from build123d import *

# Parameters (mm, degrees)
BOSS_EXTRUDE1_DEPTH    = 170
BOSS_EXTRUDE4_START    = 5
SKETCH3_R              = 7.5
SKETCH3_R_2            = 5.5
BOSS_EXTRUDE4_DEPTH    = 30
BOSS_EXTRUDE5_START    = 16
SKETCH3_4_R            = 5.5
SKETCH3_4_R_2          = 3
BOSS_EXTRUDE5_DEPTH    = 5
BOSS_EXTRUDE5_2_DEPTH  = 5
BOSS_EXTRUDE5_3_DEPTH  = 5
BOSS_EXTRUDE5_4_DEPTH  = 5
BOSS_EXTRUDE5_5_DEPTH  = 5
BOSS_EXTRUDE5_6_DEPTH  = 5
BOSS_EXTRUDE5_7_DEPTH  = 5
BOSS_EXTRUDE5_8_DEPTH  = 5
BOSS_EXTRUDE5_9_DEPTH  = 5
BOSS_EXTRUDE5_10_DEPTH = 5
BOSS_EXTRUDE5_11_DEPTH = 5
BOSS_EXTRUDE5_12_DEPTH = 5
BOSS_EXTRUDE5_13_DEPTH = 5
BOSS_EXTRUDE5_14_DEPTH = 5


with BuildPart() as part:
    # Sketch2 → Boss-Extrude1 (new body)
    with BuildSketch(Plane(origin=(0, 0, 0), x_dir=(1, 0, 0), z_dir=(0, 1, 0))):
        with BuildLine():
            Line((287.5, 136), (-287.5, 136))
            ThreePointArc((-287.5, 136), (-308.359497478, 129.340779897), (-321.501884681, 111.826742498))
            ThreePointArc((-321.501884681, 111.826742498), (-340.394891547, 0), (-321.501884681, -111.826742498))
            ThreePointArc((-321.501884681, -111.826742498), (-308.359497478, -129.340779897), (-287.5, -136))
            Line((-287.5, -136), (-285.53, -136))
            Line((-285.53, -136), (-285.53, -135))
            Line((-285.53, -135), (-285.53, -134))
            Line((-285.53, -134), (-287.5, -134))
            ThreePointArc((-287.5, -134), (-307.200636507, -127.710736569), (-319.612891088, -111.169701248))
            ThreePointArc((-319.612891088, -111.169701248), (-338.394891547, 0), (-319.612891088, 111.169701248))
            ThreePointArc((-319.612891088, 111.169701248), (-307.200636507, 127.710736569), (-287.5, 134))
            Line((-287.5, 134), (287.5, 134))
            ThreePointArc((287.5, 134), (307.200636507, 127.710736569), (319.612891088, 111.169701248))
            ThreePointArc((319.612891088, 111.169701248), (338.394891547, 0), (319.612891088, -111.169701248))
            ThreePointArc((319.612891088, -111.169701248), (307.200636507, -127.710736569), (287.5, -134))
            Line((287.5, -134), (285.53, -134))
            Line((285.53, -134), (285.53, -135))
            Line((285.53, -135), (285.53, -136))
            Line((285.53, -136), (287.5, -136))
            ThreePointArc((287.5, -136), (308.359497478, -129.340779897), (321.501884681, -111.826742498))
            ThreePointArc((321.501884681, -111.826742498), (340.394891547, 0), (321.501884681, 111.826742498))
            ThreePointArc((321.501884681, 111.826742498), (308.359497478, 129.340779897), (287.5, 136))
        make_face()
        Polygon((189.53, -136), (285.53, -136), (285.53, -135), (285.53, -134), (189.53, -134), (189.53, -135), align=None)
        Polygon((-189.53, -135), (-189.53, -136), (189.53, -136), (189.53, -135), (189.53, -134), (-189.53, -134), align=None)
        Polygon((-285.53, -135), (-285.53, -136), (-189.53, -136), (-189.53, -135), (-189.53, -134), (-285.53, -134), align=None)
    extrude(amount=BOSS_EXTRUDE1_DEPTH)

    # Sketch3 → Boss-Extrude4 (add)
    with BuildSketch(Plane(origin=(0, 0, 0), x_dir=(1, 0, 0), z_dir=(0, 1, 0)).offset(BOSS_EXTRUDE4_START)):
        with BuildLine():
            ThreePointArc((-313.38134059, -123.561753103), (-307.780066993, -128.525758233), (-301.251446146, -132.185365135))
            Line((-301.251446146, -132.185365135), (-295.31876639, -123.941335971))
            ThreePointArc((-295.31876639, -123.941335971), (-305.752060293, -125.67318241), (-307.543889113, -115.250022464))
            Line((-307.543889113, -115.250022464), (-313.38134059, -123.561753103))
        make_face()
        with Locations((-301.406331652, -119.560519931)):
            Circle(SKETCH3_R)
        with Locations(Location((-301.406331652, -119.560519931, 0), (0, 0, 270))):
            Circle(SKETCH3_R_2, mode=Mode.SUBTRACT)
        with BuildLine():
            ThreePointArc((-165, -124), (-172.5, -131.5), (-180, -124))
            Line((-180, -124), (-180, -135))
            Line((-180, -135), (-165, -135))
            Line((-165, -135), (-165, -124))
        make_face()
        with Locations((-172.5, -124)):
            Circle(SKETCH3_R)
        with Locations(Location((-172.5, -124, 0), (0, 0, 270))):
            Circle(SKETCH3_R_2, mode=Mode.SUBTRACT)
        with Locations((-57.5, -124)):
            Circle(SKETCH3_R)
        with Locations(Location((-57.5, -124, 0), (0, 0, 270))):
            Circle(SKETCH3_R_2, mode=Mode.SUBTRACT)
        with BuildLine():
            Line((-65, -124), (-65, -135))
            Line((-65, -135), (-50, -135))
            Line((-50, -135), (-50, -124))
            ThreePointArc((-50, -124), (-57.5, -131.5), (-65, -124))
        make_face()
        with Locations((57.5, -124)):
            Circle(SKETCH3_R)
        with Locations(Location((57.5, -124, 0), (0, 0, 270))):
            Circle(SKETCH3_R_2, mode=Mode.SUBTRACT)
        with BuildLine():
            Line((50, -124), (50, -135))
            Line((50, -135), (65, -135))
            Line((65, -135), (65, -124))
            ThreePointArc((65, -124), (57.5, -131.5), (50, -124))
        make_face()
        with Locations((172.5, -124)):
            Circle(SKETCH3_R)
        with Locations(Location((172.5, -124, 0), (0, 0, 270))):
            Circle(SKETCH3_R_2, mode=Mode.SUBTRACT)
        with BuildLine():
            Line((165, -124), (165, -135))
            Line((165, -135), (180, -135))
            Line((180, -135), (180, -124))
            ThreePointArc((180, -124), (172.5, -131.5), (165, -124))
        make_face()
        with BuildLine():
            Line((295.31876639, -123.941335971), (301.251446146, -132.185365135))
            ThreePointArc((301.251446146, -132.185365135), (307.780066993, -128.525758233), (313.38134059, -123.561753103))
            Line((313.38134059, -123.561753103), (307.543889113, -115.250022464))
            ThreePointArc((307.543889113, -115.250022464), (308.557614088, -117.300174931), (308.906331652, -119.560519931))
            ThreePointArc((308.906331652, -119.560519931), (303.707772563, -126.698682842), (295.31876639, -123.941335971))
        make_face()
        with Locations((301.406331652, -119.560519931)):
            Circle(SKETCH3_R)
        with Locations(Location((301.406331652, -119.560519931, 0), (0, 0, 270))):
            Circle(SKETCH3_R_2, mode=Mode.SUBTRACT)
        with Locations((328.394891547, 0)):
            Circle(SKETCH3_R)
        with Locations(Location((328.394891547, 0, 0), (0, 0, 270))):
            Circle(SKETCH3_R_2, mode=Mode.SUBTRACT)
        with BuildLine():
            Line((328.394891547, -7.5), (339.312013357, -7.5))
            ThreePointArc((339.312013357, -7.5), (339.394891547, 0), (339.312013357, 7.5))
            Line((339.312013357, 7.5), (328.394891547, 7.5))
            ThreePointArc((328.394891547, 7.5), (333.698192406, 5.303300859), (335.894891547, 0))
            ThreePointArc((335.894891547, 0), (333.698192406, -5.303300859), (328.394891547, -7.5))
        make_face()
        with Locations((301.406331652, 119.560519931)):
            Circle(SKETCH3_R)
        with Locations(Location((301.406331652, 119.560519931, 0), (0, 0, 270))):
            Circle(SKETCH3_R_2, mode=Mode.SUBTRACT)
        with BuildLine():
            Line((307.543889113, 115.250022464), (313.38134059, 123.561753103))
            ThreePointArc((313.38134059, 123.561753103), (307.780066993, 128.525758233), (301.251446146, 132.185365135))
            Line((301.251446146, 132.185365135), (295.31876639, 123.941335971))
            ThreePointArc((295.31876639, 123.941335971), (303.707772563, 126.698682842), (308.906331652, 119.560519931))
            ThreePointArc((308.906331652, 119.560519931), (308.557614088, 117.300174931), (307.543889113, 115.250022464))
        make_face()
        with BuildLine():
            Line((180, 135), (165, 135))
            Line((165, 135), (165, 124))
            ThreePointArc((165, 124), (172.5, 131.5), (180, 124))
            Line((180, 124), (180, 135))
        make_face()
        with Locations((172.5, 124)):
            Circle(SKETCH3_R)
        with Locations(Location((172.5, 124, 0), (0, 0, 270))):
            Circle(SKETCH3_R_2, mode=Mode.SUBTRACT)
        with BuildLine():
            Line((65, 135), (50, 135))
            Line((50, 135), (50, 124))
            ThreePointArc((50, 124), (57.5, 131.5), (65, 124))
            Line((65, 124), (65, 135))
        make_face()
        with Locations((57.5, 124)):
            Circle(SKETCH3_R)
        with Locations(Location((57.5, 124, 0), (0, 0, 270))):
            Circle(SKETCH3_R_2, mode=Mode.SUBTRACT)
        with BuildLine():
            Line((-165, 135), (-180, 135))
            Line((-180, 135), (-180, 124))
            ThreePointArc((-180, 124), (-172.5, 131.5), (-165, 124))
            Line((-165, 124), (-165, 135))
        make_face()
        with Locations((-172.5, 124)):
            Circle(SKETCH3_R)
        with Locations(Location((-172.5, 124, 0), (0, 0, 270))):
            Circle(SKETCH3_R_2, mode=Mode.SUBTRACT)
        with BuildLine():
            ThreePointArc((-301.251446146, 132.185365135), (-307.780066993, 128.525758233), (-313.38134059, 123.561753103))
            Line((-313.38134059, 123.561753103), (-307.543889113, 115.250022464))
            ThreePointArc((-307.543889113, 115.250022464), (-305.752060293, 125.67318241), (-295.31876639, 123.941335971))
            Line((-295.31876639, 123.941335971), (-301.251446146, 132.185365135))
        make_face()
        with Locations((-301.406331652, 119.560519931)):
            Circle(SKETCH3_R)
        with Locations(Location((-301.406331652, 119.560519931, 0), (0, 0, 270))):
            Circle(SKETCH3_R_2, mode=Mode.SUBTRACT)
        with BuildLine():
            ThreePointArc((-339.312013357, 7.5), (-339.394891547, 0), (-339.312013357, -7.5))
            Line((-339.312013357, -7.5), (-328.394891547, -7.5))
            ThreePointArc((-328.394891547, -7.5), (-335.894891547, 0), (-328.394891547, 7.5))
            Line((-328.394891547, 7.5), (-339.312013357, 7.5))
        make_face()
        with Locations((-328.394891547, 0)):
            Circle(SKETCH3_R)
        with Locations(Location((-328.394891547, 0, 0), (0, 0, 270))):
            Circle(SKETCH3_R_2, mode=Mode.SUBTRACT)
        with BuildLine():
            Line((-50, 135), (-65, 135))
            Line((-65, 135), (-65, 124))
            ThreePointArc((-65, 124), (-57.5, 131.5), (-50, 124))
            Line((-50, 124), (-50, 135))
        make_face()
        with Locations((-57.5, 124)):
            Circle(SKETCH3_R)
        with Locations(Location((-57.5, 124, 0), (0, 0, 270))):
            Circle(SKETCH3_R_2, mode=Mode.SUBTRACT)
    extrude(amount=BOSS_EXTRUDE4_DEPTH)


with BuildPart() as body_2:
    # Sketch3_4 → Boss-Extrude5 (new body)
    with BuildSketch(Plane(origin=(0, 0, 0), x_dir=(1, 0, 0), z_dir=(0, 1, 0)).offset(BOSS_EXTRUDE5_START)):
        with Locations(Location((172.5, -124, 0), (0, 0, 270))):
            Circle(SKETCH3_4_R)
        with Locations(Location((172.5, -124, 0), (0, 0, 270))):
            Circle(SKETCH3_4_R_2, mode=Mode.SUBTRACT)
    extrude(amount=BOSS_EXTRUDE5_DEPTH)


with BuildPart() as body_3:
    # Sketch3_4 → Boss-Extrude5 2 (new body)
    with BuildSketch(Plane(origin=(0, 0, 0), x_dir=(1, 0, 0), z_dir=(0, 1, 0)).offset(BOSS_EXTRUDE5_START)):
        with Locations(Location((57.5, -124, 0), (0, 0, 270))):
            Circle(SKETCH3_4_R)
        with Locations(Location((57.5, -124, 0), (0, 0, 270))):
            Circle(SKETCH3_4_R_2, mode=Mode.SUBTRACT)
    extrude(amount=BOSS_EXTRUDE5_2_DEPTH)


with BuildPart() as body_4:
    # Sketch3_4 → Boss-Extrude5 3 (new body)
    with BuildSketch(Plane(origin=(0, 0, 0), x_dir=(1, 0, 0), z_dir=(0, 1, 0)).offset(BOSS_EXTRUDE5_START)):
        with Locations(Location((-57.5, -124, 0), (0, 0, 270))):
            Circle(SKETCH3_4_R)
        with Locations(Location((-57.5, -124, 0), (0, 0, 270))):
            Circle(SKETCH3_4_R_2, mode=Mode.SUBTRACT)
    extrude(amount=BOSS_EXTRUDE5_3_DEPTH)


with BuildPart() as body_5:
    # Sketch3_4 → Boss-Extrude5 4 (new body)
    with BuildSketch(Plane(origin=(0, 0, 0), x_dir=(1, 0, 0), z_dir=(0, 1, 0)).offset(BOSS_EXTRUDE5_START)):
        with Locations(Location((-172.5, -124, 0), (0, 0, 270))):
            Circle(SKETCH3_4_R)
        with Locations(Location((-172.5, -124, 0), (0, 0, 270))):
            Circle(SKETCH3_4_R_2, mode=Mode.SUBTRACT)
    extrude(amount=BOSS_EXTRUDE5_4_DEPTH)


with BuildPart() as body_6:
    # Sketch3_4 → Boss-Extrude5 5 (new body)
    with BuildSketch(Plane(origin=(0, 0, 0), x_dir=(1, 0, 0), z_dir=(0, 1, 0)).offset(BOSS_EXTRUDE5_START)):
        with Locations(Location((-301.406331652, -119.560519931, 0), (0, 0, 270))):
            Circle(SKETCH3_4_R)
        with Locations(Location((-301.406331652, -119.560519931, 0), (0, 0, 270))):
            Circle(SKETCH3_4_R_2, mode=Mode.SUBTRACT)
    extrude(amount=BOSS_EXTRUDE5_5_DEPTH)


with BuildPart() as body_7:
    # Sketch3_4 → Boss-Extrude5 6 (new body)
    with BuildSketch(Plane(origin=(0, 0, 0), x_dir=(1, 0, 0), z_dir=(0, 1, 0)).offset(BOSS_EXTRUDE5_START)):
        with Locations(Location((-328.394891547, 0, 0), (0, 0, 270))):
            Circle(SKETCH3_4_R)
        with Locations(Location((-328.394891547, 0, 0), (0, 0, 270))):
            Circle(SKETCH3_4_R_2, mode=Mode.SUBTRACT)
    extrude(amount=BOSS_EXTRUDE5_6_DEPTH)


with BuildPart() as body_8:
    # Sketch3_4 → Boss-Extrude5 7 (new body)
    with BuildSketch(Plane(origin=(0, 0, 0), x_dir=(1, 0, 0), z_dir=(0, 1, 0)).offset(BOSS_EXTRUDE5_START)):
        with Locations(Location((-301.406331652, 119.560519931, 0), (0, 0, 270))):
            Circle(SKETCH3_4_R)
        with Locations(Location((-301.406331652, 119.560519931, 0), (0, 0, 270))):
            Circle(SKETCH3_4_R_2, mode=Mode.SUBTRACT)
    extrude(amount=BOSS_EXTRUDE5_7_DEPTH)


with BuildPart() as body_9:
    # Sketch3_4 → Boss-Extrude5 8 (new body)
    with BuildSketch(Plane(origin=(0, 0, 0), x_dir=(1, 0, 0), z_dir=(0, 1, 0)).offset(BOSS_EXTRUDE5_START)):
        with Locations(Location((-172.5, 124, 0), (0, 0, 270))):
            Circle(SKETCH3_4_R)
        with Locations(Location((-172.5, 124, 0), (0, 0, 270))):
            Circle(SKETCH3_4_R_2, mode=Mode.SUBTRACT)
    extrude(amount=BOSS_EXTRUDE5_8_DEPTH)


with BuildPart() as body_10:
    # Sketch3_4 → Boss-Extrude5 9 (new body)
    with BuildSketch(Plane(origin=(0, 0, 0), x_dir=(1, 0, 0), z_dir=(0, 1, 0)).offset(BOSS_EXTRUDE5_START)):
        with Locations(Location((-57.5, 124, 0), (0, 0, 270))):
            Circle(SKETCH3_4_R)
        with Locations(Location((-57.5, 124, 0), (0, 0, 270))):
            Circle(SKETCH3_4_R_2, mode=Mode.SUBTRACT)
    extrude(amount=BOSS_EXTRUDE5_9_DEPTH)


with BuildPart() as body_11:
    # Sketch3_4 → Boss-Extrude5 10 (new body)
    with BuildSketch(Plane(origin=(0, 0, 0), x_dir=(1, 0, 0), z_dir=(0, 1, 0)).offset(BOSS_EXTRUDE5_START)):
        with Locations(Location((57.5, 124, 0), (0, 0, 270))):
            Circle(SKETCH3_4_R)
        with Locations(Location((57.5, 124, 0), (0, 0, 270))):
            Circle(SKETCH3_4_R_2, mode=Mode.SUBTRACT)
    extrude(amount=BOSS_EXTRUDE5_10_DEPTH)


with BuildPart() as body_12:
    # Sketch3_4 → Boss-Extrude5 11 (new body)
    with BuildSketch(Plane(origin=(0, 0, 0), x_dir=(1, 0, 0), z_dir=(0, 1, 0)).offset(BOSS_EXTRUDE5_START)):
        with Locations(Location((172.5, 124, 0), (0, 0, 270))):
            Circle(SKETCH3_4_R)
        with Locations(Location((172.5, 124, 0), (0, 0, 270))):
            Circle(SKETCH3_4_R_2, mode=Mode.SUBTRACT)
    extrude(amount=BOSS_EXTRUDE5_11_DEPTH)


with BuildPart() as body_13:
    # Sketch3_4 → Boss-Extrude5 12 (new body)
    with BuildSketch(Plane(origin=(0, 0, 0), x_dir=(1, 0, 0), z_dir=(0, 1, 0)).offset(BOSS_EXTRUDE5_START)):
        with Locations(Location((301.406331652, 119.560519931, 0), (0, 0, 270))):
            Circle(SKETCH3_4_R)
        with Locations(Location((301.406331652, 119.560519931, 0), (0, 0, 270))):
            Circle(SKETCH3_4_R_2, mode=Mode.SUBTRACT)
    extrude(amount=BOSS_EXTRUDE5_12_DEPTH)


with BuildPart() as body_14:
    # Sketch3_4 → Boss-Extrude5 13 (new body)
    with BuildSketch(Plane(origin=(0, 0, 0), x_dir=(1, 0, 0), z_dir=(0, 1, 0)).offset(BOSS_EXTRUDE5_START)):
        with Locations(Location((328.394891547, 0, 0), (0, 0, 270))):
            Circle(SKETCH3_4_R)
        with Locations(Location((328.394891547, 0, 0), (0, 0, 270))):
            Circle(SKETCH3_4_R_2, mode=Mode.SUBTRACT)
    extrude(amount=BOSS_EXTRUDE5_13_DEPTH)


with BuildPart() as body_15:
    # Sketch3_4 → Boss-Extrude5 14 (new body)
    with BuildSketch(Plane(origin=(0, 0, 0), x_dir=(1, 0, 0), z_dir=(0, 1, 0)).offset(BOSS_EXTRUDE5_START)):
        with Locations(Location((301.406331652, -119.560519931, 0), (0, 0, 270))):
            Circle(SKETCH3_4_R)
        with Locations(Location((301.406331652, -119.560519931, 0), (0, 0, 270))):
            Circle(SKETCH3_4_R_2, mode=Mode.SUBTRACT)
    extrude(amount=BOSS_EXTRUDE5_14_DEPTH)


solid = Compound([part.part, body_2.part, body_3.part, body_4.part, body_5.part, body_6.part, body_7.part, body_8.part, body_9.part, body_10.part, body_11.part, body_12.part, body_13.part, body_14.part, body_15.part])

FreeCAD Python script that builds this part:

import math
import FreeCAD as App
import Part
import Sketcher
Q = App.Units.Quantity

doc = App.newDocument("Part")
body = doc.addObject("PartDesign::Body", "Body")

# Sketch on XZ plane
sketch1 = body.newObject("Sketcher::SketchObject", "Sketch")
sketch1.AttachmentSupport = (doc.getObject("XZ_Plane"), [""])
sketch1.MapMode = "FlatFace"
sketch1.addGeometry([
    Part.LineSegment(App.Vector(288, -136, 0), App.Vector(-288, -136, 0)),  # 0
    Part.ArcOfCircle(Part.Circle(App.Vector(-288, -100, 0), App.Vector(0, 0, 1), 36), math.radians(-161), math.radians(-90)),  # 1
    Part.ArcOfCircle(Part.Circle(App.Vector(0, 0, 0), App.Vector(0, 0, 1), 340), math.radians(161), math.radians(199)),  # 2
    Part.ArcOfCircle(Part.Circle(App.Vector(-288, 100, 0), App.Vector(0, 0, 1), 36), math.radians(90), math.radians(161)),  # 3
    Part.LineSegment(App.Vector(-288, 136, 0), App.Vector(288, 136, 0)),  # 4
    Part.ArcOfCircle(Part.Circle(App.Vector(288, 100, 0), App.Vector(0, 0, 1), 36), math.radians(19), math.radians(90)),  # 5
    Part.ArcOfCircle(Part.Circle(App.Vector(0, 0, 0), App.Vector(0, 0, 1), 340), math.radians(-19), math.radians(19)),  # 6
    Part.ArcOfCircle(Part.Circle(App.Vector(288, -100, 0), App.Vector(0, 0, 1), 36), math.radians(-90), math.radians(-19)),  # 7
    Part.ArcOfCircle(Part.Circle(App.Vector(-287, 100, 0), App.Vector(0, 0, 1), 34), math.radians(90), math.radians(161)),  # 8
    Part.ArcOfCircle(Part.Circle(App.Vector(0, 0, 0), App.Vector(0, 0, 1), 338), math.radians(161), math.radians(199)),  # 9
    Part.ArcOfCircle(Part.Circle(App.Vector(-287, -100, 0), App.Vector(0, 0, 1), 34), math.radians(-161), math.radians(-90)),  # 10
    Part.LineSegment(App.Vector(-288, -134, 0), App.Vector(288, -134, 0)),  # 11
    Part.ArcOfCircle(Part.Circle(App.Vector(287, -100, 0), App.Vector(0, 0, 1), 34), math.radians(-90), math.radians(-19)),  # 12
    Part.ArcOfCircle(Part.Circle(App.Vector(0, 0, 0), App.Vector(0, 0, 1), 338), math.radians(-19), math.radians(19)),  # 13
    Part.ArcOfCircle(Part.Circle(App.Vector(287, 100, 0), App.Vector(0, 0, 1), 34), math.radians(19), math.radians(90)),  # 14
    Part.LineSegment(App.Vector(288, 134, 0), App.Vector(-288, 134, 0)),  # 15
], False)
sketch1.addConstraint([
    Sketcher.Constraint("Tangent", 0, 2, 1, 2),
    Sketcher.Constraint("Tangent", 1, 1, 2, 2),
    Sketcher.Constraint("Tangent", 2, 1, 3, 2),
    Sketcher.Constraint("Tangent", 3, 1, 4, 1),
    Sketcher.Constraint("Tangent", 4, 2, 5, 2),
    Sketcher.Constraint("Tangent", 5, 1, 6, 2),
    Sketcher.Constraint("Tangent", 6, 1, 7, 2),
    Sketcher.Constraint("Tangent", 7, 1, 0, 1),
    Sketcher.Constraint("Tangent", 8, 2, 9, 1),
    Sketcher.Constraint("Tangent", 9, 2, 10, 1),
    Sketcher.Constraint("Tangent", 10, 2, 11, 1),
    Sketcher.Constraint("Tangent", 11, 2, 12, 1),
    Sketcher.Constraint("Tangent", 12, 2, 13, 1),
    Sketcher.Constraint("Tangent", 13, 2, 14, 1),
    Sketcher.Constraint("Tangent", 14, 2, 15, 1),
    Sketcher.Constraint("Tangent", 15, 2, 8, 1),
    Sketcher.Constraint("Horizontal", 0),
    Sketcher.Constraint("Horizontal", 4),
    Sketcher.Constraint("Horizontal", 11),
    Sketcher.Constraint("Horizontal", 15),
    Sketcher.Constraint("Coincident", 2, 3, -1, 1),
    Sketcher.Constraint("Coincident", 6, 3, -1, 1),
    Sketcher.Constraint("Coincident", 9, 3, -1, 1),
    Sketcher.Constraint("Coincident", 13, 3, -1, 1),
    Sketcher.Constraint("Coincident", 8, 3, 3, 3),
    Sketcher.Constraint("Coincident", 10, 3, 1, 3),
    Sketcher.Constraint("Coincident", 12, 3, 7, 3),
    Sketcher.Constraint("Equal", 1, 3),
    Sketcher.Constraint("Equal", 3, 5),
    Sketcher.Constraint("Equal", 2, 6),
    Sketcher.Constraint("Equal", 5, 7),
    Sketcher.Constraint("Equal", 12, 14),
    Sketcher.Constraint("Vertical", 1, 3, 3, 3),
    Sketcher.Constraint("Radius", 1, Q("36 mm")),
    Sketcher.Constraint("Radius", 8, Q("34 mm")),
    Sketcher.Constraint("DistanceX", 0, 2, 0, 1, Q("575 mm")),
    Sketcher.Constraint("DistanceY", 1, 3, -1, 1, Q("100 mm")),
])
pad1 = body.newObject("PartDesign::Pad", "Pad")
pad1.Profile = sketch1
pad1.Length = 170
pad1.Reversed = True

# Sketch on XZ plane
sketch2 = body.newObject("Sketcher::SketchObject", "Sketch001")
sketch2.AttachmentSupport = (doc.getObject("XZ_Plane"), [""])
sketch2.MapMode = "FlatFace"
sketch2.AttachmentOffset = App.Placement(App.Vector(0, 0, -5), App.Rotation())
sketch2.addGeometry([
    Part.ArcOfCircle(Part.Circle(App.Vector(-288, 100, 0), App.Vector(0, 0, 1), 35), math.radians(113), math.radians(138)),  # 0
    Part.LineSegment(App.Vector(-301, 132, 0), App.Vector(-295, 124, 0)),  # 1
    Part.ArcOfCircle(Part.Circle(App.Vector(-301, 120, 0), App.Vector(0, 0, 1), 8), math.radians(-145), math.radians(36)),  # 2
    Part.LineSegment(App.Vector(-308, 115, 0), App.Vector(-313, 124, 0)),  # 3
    Part.Circle(App.Vector(-301, 120, 0), App.Vector(0, 0, 1), 6),  # 4
    Part.LineSegment(App.Vector(-180, 124, 0), App.Vector(-180, 135, 0)),  # 5
    Part.LineSegment(App.Vector(-180, 135, 0), App.Vector(-165, 135, 0)),  # 6
    Part.LineSegment(App.Vector(-165, 135, 0), App.Vector(-165, 124, 0)),  # 7
    Part.ArcOfCircle(Part.Circle(App.Vector(-172, 124, 0), App.Vector(0, 0, 1), 8), math.radians(180), math.radians(360)),  # 8
    Part.Circle(App.Vector(-172, 124, 0), App.Vector(0, 0, 1), 6),  # 9
    Part.ArcOfCircle(Part.Circle(App.Vector(-58, 124, 0), App.Vector(0, 0, 1), 8), math.radians(180), math.radians(360)),  # 10
    Part.LineSegment(App.Vector(-65, 124, 0), App.Vector(-65, 135, 0)),  # 11
    Part.LineSegment(App.Vector(-65, 135, 0), App.Vector(-50, 135, 0)),  # 12
    Part.LineSegment(App.Vector(-50, 135, 0), App.Vector(-50, 124, 0)),  # 13
    Part.Circle(App.Vector(-58, 124, 0), App.Vector(0, 0, 1), 6),  # 14
    Part.ArcOfCircle(Part.Circle(App.Vector(58, 124, 0), App.Vector(0, 0, 1), 8), math.radians(180), math.radians(360)),  # 15
    Part.LineSegment(App.Vector(50, 124, 0), App.Vector(50, 135, 0)),  # 16
    Part.LineSegment(App.Vector(50, 135, 0), App.Vector(65, 135, 0)),  # 17
    Part.LineSegment(App.Vector(65, 135, 0), App.Vector(65, 124, 0)),  # 18
    Part.Circle(App.Vector(58, 124, 0), App.Vector(0, 0, 1), 6),  # 19
    Part.ArcOfCircle(Part.Circle(App.Vector(172, 124, 0), App.Vector(0, 0, 1), 8), math.radians(180), math.radians(360)),  # 20
    Part.LineSegment(App.Vector(165, 124, 0), App.Vector(165, 135, 0)),  # 21
    Part.LineSegment(App.Vector(165, 135, 0), App.Vector(180, 135, 0)),  # 22
    Part.LineSegment(App.Vector(180, 135, 0), App.Vector(180, 124, 0)),  # 23
    Part.Circle(App.Vector(172, 124, 0), App.Vector(0, 0, 1), 6),  # 24
    Part.LineSegment(App.Vector(295, 124, 0), App.Vector(301, 132, 0)),  # 25
    Part.ArcOfCircle(Part.Circle(App.Vector(288, 100, 0), App.Vector(0, 0, 1), 35), math.radians(42), math.radians(67)),  # 26
    Part.LineSegment(App.Vector(313, 124, 0), App.Vector(308, 115, 0)),  # 27
    Part.ArcOfCircle(Part.Circle(App.Vector(301, 120, 0), App.Vector(0, 0, 1), 8), math.radians(144), math.radians(325)),  # 28
    Part.Circle(App.Vector(301, 120, 0), App.Vector(0, 0, 1), 6),  # 29
    Part.ArcOfCircle(Part.Circle(App.Vector(328, 0, 0), App.Vector(0, 0, 1), 8), math.radians(90), math.radians(270)),  # 30
    Part.LineSegment(App.Vector(328, 8, 0), App.Vector(339, 8, 0)),  # 31
    Part.ArcOfCircle(Part.Circle(App.Vector(0, 0, 0), App.Vector(0, 0, 1), 339), math.radians(-1.27), math.radians(1.27)),  # 32
    Part.LineSegment(App.Vector(339, -8, 0), App.Vector(328, -8, 0)),  # 33
    Part.Circle(App.Vector(328, 0, 0), App.Vector(0, 0, 1), 6),  # 34
    Part.ArcOfCircle(Part.Circle(App.Vector(301, -120, 0), App.Vector(0, 0, 1), 8), math.radians(35), math.radians(216)),  # 35
    Part.LineSegment(App.Vector(308, -115, 0), App.Vector(313, -124, 0)),  # 36
    Part.ArcOfCircle(Part.Circle(App.Vector(288, -100, 0), App.Vector(0, 0, 1), 35), math.radians(-67), math.radians(-42)),  # 37
    Part.LineSegment(App.Vector(301, -132, 0), App.Vector(295, -124, 0)),  # 38
    Part.Circle(App.Vector(301, -120, 0), App.Vector(0, 0, 1), 6),  # 39
    Part.LineSegment(App.Vector(180, -135, 0), App.Vector(165, -135, 0)),  # 40
    Part.LineSegment(App.Vector(165, -135, 0), App.Vector(165, -124, 0)),  # 41
    Part.ArcOfCircle(Part.Circle(App.Vector(172, -124, 0), App.Vector(0, 0, 1), 8), math.radians(0), math.radians(180)),  # 42
    Part.LineSegment(App.Vector(180, -124, 0), App.Vector(180, -135, 0)),  # 43
    Part.Circle(App.Vector(172, -124, 0), App.Vector(0, 0, 1), 6),  # 44
    Part.LineSegment(App.Vector(65, -135, 0), App.Vector(50, -135, 0)),  # 45
    Part.LineSegment(App.Vector(50, -135, 0), App.Vector(50, -124, 0)),  # 46
    Part.ArcOfCircle(Part.Circle(App.Vector(58, -124, 0), App.Vector(0, 0, 1), 8), math.radians(0), math.radians(180)),  # 47
    Part.LineSegment(App.Vector(65, -124, 0), App.Vector(65, -135, 0)),  # 48
    Part.Circle(App.Vector(58, -124, 0), App.Vector(0, 0, 1), 6),  # 49
    Part.LineSegment(App.Vector(-165, -135, 0), App.Vector(-180, -135, 0)),  # 50
    Part.LineSegment(App.Vector(-180, -135, 0), App.Vector(-180, -124, 0)),  # 51
    Part.ArcOfCircle(Part.Circle(App.Vector(-172, -124, 0), App.Vector(0, 0, 1), 8), math.radians(0), math.radians(180)),  # 52
    Part.LineSegment(App.Vector(-165, -124, 0), App.Vector(-165, -135, 0)),  # 53
    Part.Circle(App.Vector(-172, -124, 0), App.Vector(0, 0, 1), 6),  # 54
    Part.ArcOfCircle(Part.Circle(App.Vector(-288, -100, 0), App.Vector(0, 0, 1), 35), math.radians(-138), math.radians(-113)),  # 55
    Part.LineSegment(App.Vector(-313, -124, 0), App.Vector(-308, -115, 0)),  # 56
    Part.ArcOfCircle(Part.Circle(App.Vector(-301, -120, 0), App.Vector(0, 0, 1), 8), math.radians(-36), math.radians(145)),  # 57
    Part.LineSegment(App.Vector(-295, -124, 0), App.Vector(-301, -132, 0)),  # 58
    Part.Circle(App.Vector(-301, -120, 0), App.Vector(0, 0, 1), 6),  # 59
    Part.ArcOfCircle(Part.Circle(App.Vector(0, 0, 0), App.Vector(0, 0, 1), 339), math.radians(178.73), math.radians(181.27)),  # 60
    Part.LineSegment(App.Vector(-339, 8, 0), App.Vector(-328, 8, 0)),  # 61
    Part.ArcOfCircle(Part.Circle(App.Vector(-328, 0, 0), App.Vector(0, 0, 1), 8), math.radians(-90), math.radians(90)),  # 62
    Part.LineSegment(App.Vector(-328, -8, 0), App.Vector(-339, -8, 0)),  # 63
    Part.Circle(App.Vector(-328, 0, 0), App.Vector(0, 0, 1), 6),  # 64
    Part.LineSegment(App.Vector(-50, -135, 0), App.Vector(-65, -135, 0)),  # 65
    Part.LineSegment(App.Vector(-65, -135, 0), App.Vector(-65, -124, 0)),  # 66
    Part.ArcOfCircle(Part.Circle(App.Vector(-58, -124, 0), App.Vector(0, 0, 1), 8), math.radians(0), math.radians(180)),  # 67
    Part.LineSegment(App.Vector(-50, -124, 0), App.Vector(-50, -135, 0)),  # 68
    Part.Circle(App.Vector(-58, -124, 0), App.Vector(0, 0, 1), 6),  # 69
], False)
sketch2.addConstraint([
    Sketcher.Constraint("Coincident", 0, 1, 1, 1),
    Sketcher.Constraint("Tangent", 1, 2, 2, 2),
    Sketcher.Constraint("Tangent", 2, 1, 3, 1),
    Sketcher.Constraint("Coincident", 3, 2, 0, 2),
    Sketcher.Constraint("Coincident", 5, 2, 6, 1),
    Sketcher.Constraint("Coincident", 6, 2, 7, 1),
    Sketcher.Constraint("Tangent", 7, 2, 8, 2),
    Sketcher.Constraint("Tangent", 8, 1, 5, 1),
    Sketcher.Constraint("Tangent", 10, 1, 11, 1),
    Sketcher.Constraint("Coincident", 11, 2, 12, 1),
    Sketcher.Constraint("Coincident", 12, 2, 13, 1),
    Sketcher.Constraint("Tangent", 13, 2, 10, 2),
    Sketcher.Constraint("Tangent", 15, 1, 16, 1),
    Sketcher.Constraint("Coincident", 16, 2, 17, 1),
    Sketcher.Constraint("Coincident", 17, 2, 18, 1),
    Sketcher.Constraint("Tangent", 18, 2, 15, 2),
    Sketcher.Constraint("Tangent", 20, 1, 21, 1),
    Sketcher.Constraint("Coincident", 21, 2, 22, 1),
    Sketcher.Constraint("Coincident", 22, 2, 23, 1),
    Sketcher.Constraint("Tangent", 23, 2, 20, 2),
    Sketcher.Constraint("Coincident", 25, 2, 26, 2),
    Sketcher.Constraint("Coincident", 26, 1, 27, 1),
    Sketcher.Constraint("Tangent", 27, 2, 28, 2),
    Sketcher.Constraint("Tangent", 28, 1, 25, 1),
    Sketcher.Constraint("Tangent", 30, 1, 31, 1),
    Sketcher.Constraint("Coincident", 31, 2, 32, 2),
    Sketcher.Constraint("Coincident", 32, 1, 33, 1),
    Sketcher.Constraint("Tangent", 33, 2, 30, 2),
    Sketcher.Constraint("Tangent", 35, 1, 36, 1),
    Sketcher.Constraint("Coincident", 36, 2, 37, 2),
    Sketcher.Constraint("Coincident", 37, 1, 38, 1),
    Sketcher.Constraint("Tangent", 38, 2, 35, 2),
    Sketcher.Constraint("Coincident", 40, 2, 41, 1),
    Sketcher.Constraint("Tangent", 41, 2, 42, 2),
    Sketcher.Constraint("Tangent", 42, 1, 43, 1),
    Sketcher.Constraint("Coincident", 43, 2, 40, 1),
    Sketcher.Constraint("Coincident", 45, 2, 46, 1),
    Sketcher.Constraint("Tangent", 46, 2, 47, 2),
    Sketcher.Constraint("Tangent", 47, 1, 48, 1),
    Sketcher.Constraint("Coincident", 48, 2, 45, 1),
    Sketcher.Constraint("Coincident", 50, 2, 51, 1),
    Sketcher.Constraint("Tangent", 51, 2, 52, 2),
    Sketcher.Constraint("Tangent", 52, 1, 53, 1),
    Sketcher.Constraint("Coincident", 53, 2, 50, 1),
    Sketcher.Constraint("Coincident", 55, 1, 56, 1),
    Sketcher.Constraint("Tangent", 56, 2, 57, 2),
    Sketcher.Constraint("Tangent", 57, 1, 58, 1),
    Sketcher.Constraint("Coincident", 58, 2, 55, 2),
    Sketcher.Constraint("Coincident", 60, 1, 61, 1),
    Sketcher.Constraint("Tangent", 61, 2, 62, 2),
    Sketcher.Constraint("Tangent", 62, 1, 63, 1),
    Sketcher.Constraint("Coincident", 63, 2, 60, 2),
    Sketcher.Constraint("Coincident", 65, 2, 66, 1),
    Sketcher.Constraint("Tangent", 66, 2, 67, 2),
    Sketcher.Constraint("Tangent", 67, 1, 68, 1),
    Sketcher.Constraint("Coincident", 68, 2, 65, 1),
    Sketcher.Constraint("Vertical", 5),
    Sketcher.Constraint("Horizontal", 6),
    Sketcher.Constraint("Vertical", 7),
    Sketcher.Constraint("Vertical", 11),
    Sketcher.Constraint("Horizontal", 12),
    Sketcher.Constraint("Vertical", 13),
    Sketcher.Constraint("Vertical", 16),
    Sketcher.Constraint("Horizontal", 17),
    Sketcher.Constraint("Vertical", 18),
    Sketcher.Constraint("Vertical", 21),
    Sketcher.Constraint("Horizontal", 22),
    Sketcher.Constraint("Vertical", 23),
    Sketcher.Constraint("Horizontal", 31),
    Sketcher.Constraint("Horizontal", 33),
    Sketcher.Constraint("Horizontal", 40),
    Sketcher.Constraint("Vertical", 41),
    Sketcher.Constraint("Vertical", 43),
    Sketcher.Constraint("Horizontal", 45),
    Sketcher.Constraint("Vertical", 46),
    Sketcher.Constraint("Vertical", 48),
    Sketcher.Constraint("Horizontal", 50),
    Sketcher.Constraint("Vertical", 51),
    Sketcher.Constraint("Vertical", 53),
    Sketcher.Constraint("Horizontal", 61),
    Sketcher.Constraint("Horizontal", 63),
    Sketcher.Constraint("Horizontal", 65),
    Sketcher.Constraint("Vertical", 66),
    Sketcher.Constraint("Vertical", 68),
    Sketcher.Constraint("Coincident", 32, 3, -1, 1),
    Sketcher.Constraint("Coincident", 60, 3, -1, 1),
    Sketcher.Constraint("Coincident", 4, 3, 2, 3),
    Sketcher.Constraint("Coincident", 9, 3, 8, 3),
    Sketcher.Constraint("Coincident", 14, 3, 10, 3),
    Sketcher.Constraint("Coincident", 19, 3, 15, 3),
    Sketcher.Constraint("Coincident", 24, 3, 20, 3),
    Sketcher.Constraint("Coincident", 29, 3, 28, 3),
    Sketcher.Constraint("Coincident", 34, 3, 30, 3),
    Sketcher.Constraint("Coincident", 39, 3, 35, 3),
    Sketcher.Constraint("Coincident", 44, 3, 42, 3),
    Sketcher.Constraint("Coincident", 49, 3, 47, 3),
    Sketcher.Constraint("Coincident", 54, 3, 52, 3),
    Sketcher.Constraint("Coincident", 59, 3, 57, 3),
    Sketcher.Constraint("Coincident", 64, 3, 62, 3),
    Sketcher.Constraint("Coincident", 69, 3, 67, 3),
    Sketcher.Constraint("Equal", 2, 8),
    Sketcher.Constraint("Equal", 4, 9),
    Sketcher.Constraint("Equal", 8, 10),
    Sketcher.Constraint("Equal", 9, 14),
    Sketcher.Constraint("Equal", 10, 15),
    Sketcher.Constraint("Equal", 14, 19),
    Sketcher.Constraint("Equal", 15, 20),
    Sketcher.Constraint("Equal", 19, 24),
    Sketcher.Constraint("Equal", 0, 26),
    Sketcher.Constraint("Equal", 20, 28),
    Sketcher.Constraint("Equal", 24, 29),
    Sketcher.Constraint("Equal", 28, 30),
    Sketcher.Constraint("Equal", 29, 34),
    Sketcher.Constraint("Equal", 30, 35),
    Sketcher.Constraint("Equal", 26, 37),
    Sketcher.Constraint("Equal", 34, 39),
    Sketcher.Constraint("Equal", 35, 42),
    Sketcher.Constraint("Equal", 39, 44),
    Sketcher.Constraint("Equal", 42, 47),
    Sketcher.Constraint("Equal", 44, 49),
    Sketcher.Constraint("Equal", 47, 52),
    Sketcher.Constraint("Equal", 49, 54),
    Sketcher.Constraint("Equal", 37, 55),
    Sketcher.Constraint("Equal", 52, 57),
    Sketcher.Constraint("Equal", 54, 59),
    Sketcher.Constraint("Equal", 32, 60),
    Sketcher.Constraint("Equal", 57, 62),
    Sketcher.Constraint("Equal", 59, 64),
    Sketcher.Constraint("Equal", 62, 67),
    Sketcher.Constraint("Equal", 64, 69),
    Sketcher.Constraint("Symmetric", 2, 3, 35, 3, -1, 1),
    Sketcher.Constraint("Symmetric", 0, 3, 37, 3, -1, 1),
    Sketcher.Constraint("Symmetric", 8, 3, 42, 3, -1, 1),
    Sketcher.Constraint("Symmetric", 10, 3, 47, 3, -1, 1),
    Sketcher.Constraint("Symmetric", 20, 3, 52, 3, -1, 1),
    Sketcher.Constraint("Symmetric", 26, 3, 55, 3, -1, 1),
    Sketcher.Constraint("Symmetric", 28, 3, 57, 3, -1, 1),
    Sketcher.Constraint("Symmetric", 30, 3, 62, 3, -1, 1),
    Sketcher.Constraint("Symmetric", 15, 3, 67, 3, -1, 1),
    Sketcher.Constraint("Symmetric", 10, 3, 15, 3, -2),
    Sketcher.Constraint("Symmetric", 8, 3, 20, 3, -2),
    Sketcher.Constraint("Symmetric", 0, 3, 26, 3, -2),
    Sketcher.Constraint("Symmetric", 2, 3, 28, 3, -2),
    Sketcher.Constraint("PointOnObject", 30, 3, -1),
    Sketcher.Constraint("Parallel", 3, 36),
    Sketcher.Constraint("Parallel", 1, 38),
    Sketcher.Constraint("Parallel", 27, 56),
    Sketcher.Constraint("Parallel", 25, 58),
    Sketcher.Constraint("Horizontal", 9, 3, 10, 3),
    Sketcher.Constraint("Horizontal", 6, 2, 11, 2),
    Sketcher.Constraint("Horizontal", 12, 2, 16, 2),
    Sketcher.Constraint("Horizontal", 17, 2, 21, 2),
    Sketcher.Constraint("Horizontal", 0, 1, 25, 2),
    Sketcher.Constraint("Horizontal", 3, 2, 26, 1),
    Sketcher.Constraint("Horizontal", 43, 2, 45, 2),
    Sketcher.Constraint("Horizontal", 48, 2, 50, 2),
    Sketcher.Constraint("Horizontal", 53, 2, 65, 2),
    Sketcher.Constraint("Equal", 23, 41),
    Sketcher.Constraint("Equal", 1, 3),
    Sketcher.Constraint("Diameter", 4, Q("11 mm")),
    Sketcher.Constraint("Radius", 0, Q("35 mm")),
    Sketcher.Constraint("Radius", 2, Q("7.5 mm")),
    Sketcher.Constraint("DistanceY", 5, 1, 5, 2, Q("11 mm")),
    Sketcher.Constraint("DistanceY", -1, 1, 0, 3, Q("100 mm")),
    Sketcher.Constraint("DistanceY", -1, 1, 8, 3, Q("124 mm")),
    Sketcher.Constraint("DistanceX", 5, 2, -1, 1, Q("180 mm")),
    Sketcher.Constraint("DistanceX", 10, 1, -1, 1, Q("65 mm")),
    Sketcher.Constraint("DistanceX", 0, 3, -1, 1, Q("287.5 mm")),
    Sketcher.Constraint("Radius", 32, Q("339.394893 mm")),
    Sketcher.Constraint("DistanceX", 31, 1, 31, 2, Q("10.917122 mm")),
    Sketcher.Constraint("DistanceX", 2, 3, -1, 1, Q("301.406332 mm")),
    Sketcher.Constraint("DistanceY", -1, 1, 2, 3, Q("119.56052 mm")),
    Sketcher.Constraint("DistanceX", 2, 1, -1, 1, Q("307.543889 mm")),
])
pad2 = body.newObject("PartDesign::Pad", "Pad001")
pad2.Profile = sketch2
pad2.Length = 30
pad2.Reversed = True
body2 = doc.addObject("PartDesign::Body", "Body001")

# Sketch on XZ plane
sketch3 = body2.newObject("Sketcher::SketchObject", "Sketch002")
sketch3.AttachmentSupport = (doc.getObject("XZ_Plane001"), [""])
sketch3.MapMode = "FlatFace"
sketch3.AttachmentOffset = App.Placement(App.Vector(0, 0, -16), App.Rotation())
sketch3.addGeometry([
    Part.Circle(App.Vector(172.5, 124, 0), App.Vector(0, 0, 1), 5.5),
    Part.Circle(App.Vector(172.5, 124, 0), App.Vector(0, 0, 1), 3),
], False)
sketch3.addConstraint([
    Sketcher.Constraint("Coincident", 1, 3, 0, 3),
    Sketcher.Constraint("Diameter", 0, Q("11 mm")),
    Sketcher.Constraint("Diameter", 1, Q("6 mm")),
    Sketcher.Constraint("DistanceY", -1, 1, 0, 3, Q("124 mm")),
    Sketcher.Constraint("DistanceX", -1, 1, 0, 3, Q("172.5 mm")),
])
pad3 = body2.newObject("PartDesign::Pad", "Pad002")
pad3.Profile = sketch3
pad3.Length = 5
pad3.Reversed = True
body3 = doc.addObject("PartDesign::Body", "Body002")

# Sketch on XZ plane
sketch4 = body3.newObject("Sketcher::SketchObject", "Sketch003")
sketch4.AttachmentSupport = (doc.getObject("XZ_Plane002"), [""])
sketch4.MapMode = "FlatFace"
sketch4.AttachmentOffset = App.Placement(App.Vector(0, 0, -16), App.Rotation())
sketch4.addGeometry([
    Part.Circle(App.Vector(57.5, 124, 0), App.Vector(0, 0, 1), 5.5),
    Part.Circle(App.Vector(57.5, 124, 0), App.Vector(0, 0, 1), 3),
], False)
sketch4.addConstraint([
    Sketcher.Constraint("Coincident", 1, 3, 0, 3),
    Sketcher.Constraint("Diameter", 0, Q("11 mm")),
    Sketcher.Constraint("Diameter", 1, Q("6 mm")),
    Sketcher.Constraint("DistanceY", -1, 1, 0, 3, Q("124 mm")),
    Sketcher.Constraint("DistanceX", -1, 1, 0, 3, Q("57.5 mm")),
])
pad4 = body3.newObject("PartDesign::Pad", "Pad003")
pad4.Profile = sketch4
pad4.Length = 5
pad4.Reversed = True
body4 = doc.addObject("PartDesign::Body", "Body003")

# Sketch on XZ plane
sketch5 = body4.newObject("Sketcher::SketchObject", "Sketch004")
sketch5.AttachmentSupport = (doc.getObject("XZ_Plane003"), [""])
sketch5.MapMode = "FlatFace"
sketch5.AttachmentOffset = App.Placement(App.Vector(0, 0, -16), App.Rotation())
sketch5.addGeometry([
    Part.Circle(App.Vector(-57.5, 124, 0), App.Vector(0, 0, 1), 5.5),
    Part.Circle(App.Vector(-57.5, 124, 0), App.Vector(0, 0, 1), 3),
], False)
sketch5.addConstraint([
    Sketcher.Constraint("Coincident", 1, 3, 0, 3),
    Sketcher.Constraint("Diameter", 0, Q("11 mm")),
    Sketcher.Constraint("Diameter", 1, Q("6 mm")),
    Sketcher.Constraint("DistanceY", -1, 1, 0, 3, Q("124 mm")),
    Sketcher.Constraint("DistanceX", 0, 3, -1, 1, Q("57.5 mm")),
])
pad5 = body4.newObject("PartDesign::Pad", "Pad004")
pad5.Profile = sketch5
pad5.Length = 5
pad5.Reversed = True
body5 = doc.addObject("PartDesign::Body", "Body004")

# Sketch on XZ plane
sketch6 = body5.newObject("Sketcher::SketchObject", "Sketch005")
sketch6.AttachmentSupport = (doc.getObject("XZ_Plane004"), [""])
sketch6.MapMode = "FlatFace"
sketch6.AttachmentOffset = App.Placement(App.Vector(0, 0, -16), App.Rotation())
sketch6.addGeometry([
    Part.Circle(App.Vector(-172.5, 124, 0), App.Vector(0, 0, 1), 5.5),
    Part.Circle(App.Vector(-172.5, 124, 0), App.Vector(0, 0, 1), 3),
], False)
sketch6.addConstraint([
    Sketcher.Constraint("Coincident", 1, 3, 0, 3),
    Sketcher.Constraint("Diameter", 0, Q("11 mm")),
    Sketcher.Constraint("Diameter", 1, Q("6 mm")),
    Sketcher.Constraint("DistanceY", -1, 1, 0, 3, Q("124 mm")),
    Sketcher.Constraint("DistanceX", 0, 3, -1, 1, Q("172.5 mm")),
])
pad6 = body5.newObject("PartDesign::Pad", "Pad005")
pad6.Profile = sketch6
pad6.Length = 5
pad6.Reversed = True
body6 = doc.addObject("PartDesign::Body", "Body005")

# Sketch on XZ plane
sketch7 = body6.newObject("Sketcher::SketchObject", "Sketch006")
sketch7.AttachmentSupport = (doc.getObject("XZ_Plane005"), [""])
sketch7.MapMode = "FlatFace"
sketch7.AttachmentOffset = App.Placement(App.Vector(0, 0, -16), App.Rotation())
sketch7.addGeometry([
    Part.Circle(App.Vector(-301.4, 119.6, 0), App.Vector(0, 0, 1), 5.5),
    Part.Circle(App.Vector(-301.4, 119.6, 0), App.Vector(0, 0, 1), 3),
], False)
sketch7.addConstraint([
    Sketcher.Constraint("Coincident", 1, 3, 0, 3),
    Sketcher.Constraint("Diameter", 0, Q("11 mm")),
    Sketcher.Constraint("Diameter", 1, Q("6 mm")),
    Sketcher.Constraint("DistanceX", 0, 3, -1, 1, Q("301.406332 mm")),
    Sketcher.Constraint("DistanceY", -1, 1, 0, 3, Q("119.56052 mm")),
])
pad7 = body6.newObject("PartDesign::Pad", "Pad006")
pad7.Profile = sketch7
pad7.Length = 5
pad7.Reversed = True
body7 = doc.addObject("PartDesign::Body", "Body006")

# Sketch on XZ plane
sketch8 = body7.newObject("Sketcher::SketchObject", "Sketch007")
sketch8.AttachmentSupport = (doc.getObject("XZ_Plane006"), [""])
sketch8.MapMode = "FlatFace"
sketch8.AttachmentOffset = App.Placement(App.Vector(0, 0, -16), App.Rotation())
sketch8.addGeometry([
    Part.Circle(App.Vector(-328.4, 0, 0), App.Vector(0, 0, 1), 5.5),
    Part.Circle(App.Vector(-328.4, 0, 0), App.Vector(0, 0, 1), 3),
], False)
sketch8.addConstraint([
    Sketcher.Constraint("Coincident", 1, 3, 0, 3),
    Sketcher.Constraint("PointOnObject", 0, 3, -1),
    Sketcher.Constraint("Diameter", 0, Q("11 mm")),
    Sketcher.Constraint("Diameter", 1, Q("6 mm")),
    Sketcher.Constraint("DistanceX", 0, 3, -1, 1, Q("328.394892 mm")),
])
pad8 = body7.newObject("PartDesign::Pad", "Pad007")
pad8.Profile = sketch8
pad8.Length = 5
pad8.Reversed = True
body8 = doc.addObject("PartDesign::Body", "Body007")

# Sketch on XZ plane
sketch9 = body8.newObject("Sketcher::SketchObject", "Sketch008")
sketch9.AttachmentSupport = (doc.getObject("XZ_Plane007"), [""])
sketch9.MapMode = "FlatFace"
sketch9.AttachmentOffset = App.Placement(App.Vector(0, 0, -16), App.Rotation())
sketch9.addGeometry([
    Part.Circle(App.Vector(-301.4, -119.6, 0), App.Vector(0, 0, 1), 5.5),
    Part.Circle(App.Vector(-301.4, -119.6, 0), App.Vector(0, 0, 1), 3),
], False)
sketch9.addConstraint([
    Sketcher.Constraint("Coincident", 1, 3, 0, 3),
    Sketcher.Constraint("Diameter", 0, Q("11 mm")),
    Sketcher.Constraint("Diameter", 1, Q("6 mm")),
    Sketcher.Constraint("DistanceX", 0, 3, -1, 1, Q("301.406332 mm")),
    Sketcher.Constraint("DistanceY", 0, 3, -1, 1, Q("119.56052 mm")),
])
pad9 = body8.newObject("PartDesign::Pad", "Pad008")
pad9.Profile = sketch9
pad9.Length = 5
pad9.Reversed = True
body9 = doc.addObject("PartDesign::Body", "Body008")

# Sketch on XZ plane
sketch10 = body9.newObject("Sketcher::SketchObject", "Sketch009")
sketch10.AttachmentSupport = (doc.getObject("XZ_Plane008"), [""])
sketch10.MapMode = "FlatFace"
sketch10.AttachmentOffset = App.Placement(App.Vector(0, 0, -16), App.Rotation())
sketch10.addGeometry([
    Part.Circle(App.Vector(-172.5, -124, 0), App.Vector(0, 0, 1), 5.5),
    Part.Circle(App.Vector(-172.5, -124, 0), App.Vector(0, 0, 1), 3),
], False)
sketch10.addConstraint([
    Sketcher.Constraint("Coincident", 1, 3, 0, 3),
    Sketcher.Constraint("Diameter", 0, Q("11 mm")),
    Sketcher.Constraint("Diameter", 1, Q("6 mm")),
    Sketcher.Constraint("DistanceY", 0, 3, -1, 1, Q("124 mm")),
    Sketcher.Constraint("DistanceX", 0, 3, -1, 1, Q("172.5 mm")),
])
pad10 = body9.newObject("PartDesign::Pad", "Pad009")
pad10.Profile = sketch10
pad10.Length = 5
pad10.Reversed = True
body10 = doc.addObject("PartDesign::Body", "Body009")

# Sketch on XZ plane
sketch11 = body10.newObject("Sketcher::SketchObject", "Sketch010")
sketch11.AttachmentSupport = (doc.getObject("XZ_Plane009"), [""])
sketch11.MapMode = "FlatFace"
sketch11.AttachmentOffset = App.Placement(App.Vector(0, 0, -16), App.Rotation())
sketch11.addGeometry([
    Part.Circle(App.Vector(-57.5, -124, 0), App.Vector(0, 0, 1), 5.5),
    Part.Circle(App.Vector(-57.5, -124, 0), App.Vector(0, 0, 1), 3),
], False)
sketch11.addConstraint([
    Sketcher.Constraint("Coincident", 1, 3, 0, 3),
    Sketcher.Constraint("Diameter", 0, Q("11 mm")),
    Sketcher.Constraint("Diameter", 1, Q("6 mm")),
    Sketcher.Constraint("DistanceY", 0, 3, -1, 1, Q("124 mm")),
    Sketcher.Constraint("DistanceX", 0, 3, -1, 1, Q("57.5 mm")),
])
pad11 = body10.newObject("PartDesign::Pad", "Pad010")
pad11.Profile = sketch11
pad11.Length = 5
pad11.Reversed = True
body11 = doc.addObject("PartDesign::Body", "Body010")

# Sketch on XZ plane
sketch12 = body11.newObject("Sketcher::SketchObject", "Sketch011")
sketch12.AttachmentSupport = (doc.getObject("XZ_Plane010"), [""])
sketch12.MapMode = "FlatFace"
sketch12.AttachmentOffset = App.Placement(App.Vector(0, 0, -16), App.Rotation())
sketch12.addGeometry([
    Part.Circle(App.Vector(57.5, -124, 0), App.Vector(0, 0, 1), 5.5),
    Part.Circle(App.Vector(57.5, -124, 0), App.Vector(0, 0, 1), 3),
], False)
sketch12.addConstraint([
    Sketcher.Constraint("Coincident", 1, 3, 0, 3),
    Sketcher.Constraint("Diameter", 0, Q("11 mm")),
    Sketcher.Constraint("Diameter", 1, Q("6 mm")),
    Sketcher.Constraint("DistanceY", 0, 3, -1, 1, Q("124 mm")),
    Sketcher.Constraint("DistanceX", -1, 1, 0, 3, Q("57.5 mm")),
])
pad12 = body11.newObject("PartDesign::Pad", "Pad011")
pad12.Profile = sketch12
pad12.Length = 5
pad12.Reversed = True
body12 = doc.addObject("PartDesign::Body", "Body011")

# Sketch on XZ plane
sketch13 = body12.newObject("Sketcher::SketchObject", "Sketch012")
sketch13.AttachmentSupport = (doc.getObject("XZ_Plane011"), [""])
sketch13.MapMode = "FlatFace"
sketch13.AttachmentOffset = App.Placement(App.Vector(0, 0, -16), App.Rotation())
sketch13.addGeometry([
    Part.Circle(App.Vector(172.5, -124, 0), App.Vector(0, 0, 1), 5.5),
    Part.Circle(App.Vector(172.5, -124, 0), App.Vector(0, 0, 1), 3),
], False)
sketch13.addConstraint([
    Sketcher.Constraint("Coincident", 1, 3, 0, 3),
    Sketcher.Constraint("Diameter", 0, Q("11 mm")),
    Sketcher.Constraint("Diameter", 1, Q("6 mm")),
    Sketcher.Constraint("DistanceY", 0, 3, -1, 1, Q("124 mm")),
    Sketcher.Constraint("DistanceX", -1, 1, 0, 3, Q("172.5 mm")),
])
pad13 = body12.newObject("PartDesign::Pad", "Pad012")
pad13.Profile = sketch13
pad13.Length = 5
pad13.Reversed = True
body13 = doc.addObject("PartDesign::Body", "Body012")

# Sketch on XZ plane
sketch14 = body13.newObject("Sketcher::SketchObject", "Sketch013")
sketch14.AttachmentSupport = (doc.getObject("XZ_Plane012"), [""])
sketch14.MapMode = "FlatFace"
sketch14.AttachmentOffset = App.Placement(App.Vector(0, 0, -16), App.Rotation())
sketch14.addGeometry([
    Part.Circle(App.Vector(301.4, -119.6, 0), App.Vector(0, 0, 1), 5.5),
    Part.Circle(App.Vector(301.4, -119.6, 0), App.Vector(0, 0, 1), 3),
], False)
sketch14.addConstraint([
    Sketcher.Constraint("Coincident", 1, 3, 0, 3),
    Sketcher.Constraint("Diameter", 0, Q("11 mm")),
    Sketcher.Constraint("Diameter", 1, Q("6 mm")),
    Sketcher.Constraint("DistanceX", -1, 1, 0, 3, Q("301.406332 mm")),
    Sketcher.Constraint("DistanceY", 0, 3, -1, 1, Q("119.56052 mm")),
])
pad14 = body13.newObject("PartDesign::Pad", "Pad013")
pad14.Profile = sketch14
pad14.Length = 5
pad14.Reversed = True
body14 = doc.addObject("PartDesign::Body", "Body013")

# Sketch on XZ plane
sketch15 = body14.newObject("Sketcher::SketchObject", "Sketch014")
sketch15.AttachmentSupport = (doc.getObject("XZ_Plane013"), [""])
sketch15.MapMode = "FlatFace"
sketch15.AttachmentOffset = App.Placement(App.Vector(0, 0, -16), App.Rotation())
sketch15.addGeometry([
    Part.Circle(App.Vector(328.4, 0, 0), App.Vector(0, 0, 1), 5.5),
    Part.Circle(App.Vector(328.4, 0, 0), App.Vector(0, 0, 1), 3),
], False)
sketch15.addConstraint([
    Sketcher.Constraint("Coincident", 1, 3, 0, 3),
    Sketcher.Constraint("PointOnObject", 0, 3, -1),
    Sketcher.Constraint("Diameter", 0, Q("11 mm")),
    Sketcher.Constraint("Diameter", 1, Q("6 mm")),
    Sketcher.Constraint("DistanceX", -1, 1, 0, 3, Q("328.394892 mm")),
])
pad15 = body14.newObject("PartDesign::Pad", "Pad014")
pad15.Profile = sketch15
pad15.Length = 5
pad15.Reversed = True
body15 = doc.addObject("PartDesign::Body", "Body014")

# Sketch on XZ plane
sketch16 = body15.newObject("Sketcher::SketchObject", "Sketch015")
sketch16.AttachmentSupport = (doc.getObject("XZ_Plane014"), [""])
sketch16.MapMode = "FlatFace"
sketch16.AttachmentOffset = App.Placement(App.Vector(0, 0, -16), App.Rotation())
sketch16.addGeometry([
    Part.Circle(App.Vector(301.4, 119.6, 0), App.Vector(0, 0, 1), 5.5),
    Part.Circle(App.Vector(301.4, 119.6, 0), App.Vector(0, 0, 1), 3),
], False)
sketch16.addConstraint([
    Sketcher.Constraint("Coincident", 1, 3, 0, 3),
    Sketcher.Constraint("Diameter", 0, Q("11 mm")),
    Sketcher.Constraint("Diameter", 1, Q("6 mm")),
    Sketcher.Constraint("DistanceX", -1, 1, 0, 3, Q("301.406332 mm")),
    Sketcher.Constraint("DistanceY", -1, 1, 0, 3, Q("119.56052 mm")),
])
pad16 = body15.newObject("PartDesign::Pad", "Pad015")
pad16.Profile = sketch16
pad16.Length = 5
pad16.Reversed = True

doc.recompute()
